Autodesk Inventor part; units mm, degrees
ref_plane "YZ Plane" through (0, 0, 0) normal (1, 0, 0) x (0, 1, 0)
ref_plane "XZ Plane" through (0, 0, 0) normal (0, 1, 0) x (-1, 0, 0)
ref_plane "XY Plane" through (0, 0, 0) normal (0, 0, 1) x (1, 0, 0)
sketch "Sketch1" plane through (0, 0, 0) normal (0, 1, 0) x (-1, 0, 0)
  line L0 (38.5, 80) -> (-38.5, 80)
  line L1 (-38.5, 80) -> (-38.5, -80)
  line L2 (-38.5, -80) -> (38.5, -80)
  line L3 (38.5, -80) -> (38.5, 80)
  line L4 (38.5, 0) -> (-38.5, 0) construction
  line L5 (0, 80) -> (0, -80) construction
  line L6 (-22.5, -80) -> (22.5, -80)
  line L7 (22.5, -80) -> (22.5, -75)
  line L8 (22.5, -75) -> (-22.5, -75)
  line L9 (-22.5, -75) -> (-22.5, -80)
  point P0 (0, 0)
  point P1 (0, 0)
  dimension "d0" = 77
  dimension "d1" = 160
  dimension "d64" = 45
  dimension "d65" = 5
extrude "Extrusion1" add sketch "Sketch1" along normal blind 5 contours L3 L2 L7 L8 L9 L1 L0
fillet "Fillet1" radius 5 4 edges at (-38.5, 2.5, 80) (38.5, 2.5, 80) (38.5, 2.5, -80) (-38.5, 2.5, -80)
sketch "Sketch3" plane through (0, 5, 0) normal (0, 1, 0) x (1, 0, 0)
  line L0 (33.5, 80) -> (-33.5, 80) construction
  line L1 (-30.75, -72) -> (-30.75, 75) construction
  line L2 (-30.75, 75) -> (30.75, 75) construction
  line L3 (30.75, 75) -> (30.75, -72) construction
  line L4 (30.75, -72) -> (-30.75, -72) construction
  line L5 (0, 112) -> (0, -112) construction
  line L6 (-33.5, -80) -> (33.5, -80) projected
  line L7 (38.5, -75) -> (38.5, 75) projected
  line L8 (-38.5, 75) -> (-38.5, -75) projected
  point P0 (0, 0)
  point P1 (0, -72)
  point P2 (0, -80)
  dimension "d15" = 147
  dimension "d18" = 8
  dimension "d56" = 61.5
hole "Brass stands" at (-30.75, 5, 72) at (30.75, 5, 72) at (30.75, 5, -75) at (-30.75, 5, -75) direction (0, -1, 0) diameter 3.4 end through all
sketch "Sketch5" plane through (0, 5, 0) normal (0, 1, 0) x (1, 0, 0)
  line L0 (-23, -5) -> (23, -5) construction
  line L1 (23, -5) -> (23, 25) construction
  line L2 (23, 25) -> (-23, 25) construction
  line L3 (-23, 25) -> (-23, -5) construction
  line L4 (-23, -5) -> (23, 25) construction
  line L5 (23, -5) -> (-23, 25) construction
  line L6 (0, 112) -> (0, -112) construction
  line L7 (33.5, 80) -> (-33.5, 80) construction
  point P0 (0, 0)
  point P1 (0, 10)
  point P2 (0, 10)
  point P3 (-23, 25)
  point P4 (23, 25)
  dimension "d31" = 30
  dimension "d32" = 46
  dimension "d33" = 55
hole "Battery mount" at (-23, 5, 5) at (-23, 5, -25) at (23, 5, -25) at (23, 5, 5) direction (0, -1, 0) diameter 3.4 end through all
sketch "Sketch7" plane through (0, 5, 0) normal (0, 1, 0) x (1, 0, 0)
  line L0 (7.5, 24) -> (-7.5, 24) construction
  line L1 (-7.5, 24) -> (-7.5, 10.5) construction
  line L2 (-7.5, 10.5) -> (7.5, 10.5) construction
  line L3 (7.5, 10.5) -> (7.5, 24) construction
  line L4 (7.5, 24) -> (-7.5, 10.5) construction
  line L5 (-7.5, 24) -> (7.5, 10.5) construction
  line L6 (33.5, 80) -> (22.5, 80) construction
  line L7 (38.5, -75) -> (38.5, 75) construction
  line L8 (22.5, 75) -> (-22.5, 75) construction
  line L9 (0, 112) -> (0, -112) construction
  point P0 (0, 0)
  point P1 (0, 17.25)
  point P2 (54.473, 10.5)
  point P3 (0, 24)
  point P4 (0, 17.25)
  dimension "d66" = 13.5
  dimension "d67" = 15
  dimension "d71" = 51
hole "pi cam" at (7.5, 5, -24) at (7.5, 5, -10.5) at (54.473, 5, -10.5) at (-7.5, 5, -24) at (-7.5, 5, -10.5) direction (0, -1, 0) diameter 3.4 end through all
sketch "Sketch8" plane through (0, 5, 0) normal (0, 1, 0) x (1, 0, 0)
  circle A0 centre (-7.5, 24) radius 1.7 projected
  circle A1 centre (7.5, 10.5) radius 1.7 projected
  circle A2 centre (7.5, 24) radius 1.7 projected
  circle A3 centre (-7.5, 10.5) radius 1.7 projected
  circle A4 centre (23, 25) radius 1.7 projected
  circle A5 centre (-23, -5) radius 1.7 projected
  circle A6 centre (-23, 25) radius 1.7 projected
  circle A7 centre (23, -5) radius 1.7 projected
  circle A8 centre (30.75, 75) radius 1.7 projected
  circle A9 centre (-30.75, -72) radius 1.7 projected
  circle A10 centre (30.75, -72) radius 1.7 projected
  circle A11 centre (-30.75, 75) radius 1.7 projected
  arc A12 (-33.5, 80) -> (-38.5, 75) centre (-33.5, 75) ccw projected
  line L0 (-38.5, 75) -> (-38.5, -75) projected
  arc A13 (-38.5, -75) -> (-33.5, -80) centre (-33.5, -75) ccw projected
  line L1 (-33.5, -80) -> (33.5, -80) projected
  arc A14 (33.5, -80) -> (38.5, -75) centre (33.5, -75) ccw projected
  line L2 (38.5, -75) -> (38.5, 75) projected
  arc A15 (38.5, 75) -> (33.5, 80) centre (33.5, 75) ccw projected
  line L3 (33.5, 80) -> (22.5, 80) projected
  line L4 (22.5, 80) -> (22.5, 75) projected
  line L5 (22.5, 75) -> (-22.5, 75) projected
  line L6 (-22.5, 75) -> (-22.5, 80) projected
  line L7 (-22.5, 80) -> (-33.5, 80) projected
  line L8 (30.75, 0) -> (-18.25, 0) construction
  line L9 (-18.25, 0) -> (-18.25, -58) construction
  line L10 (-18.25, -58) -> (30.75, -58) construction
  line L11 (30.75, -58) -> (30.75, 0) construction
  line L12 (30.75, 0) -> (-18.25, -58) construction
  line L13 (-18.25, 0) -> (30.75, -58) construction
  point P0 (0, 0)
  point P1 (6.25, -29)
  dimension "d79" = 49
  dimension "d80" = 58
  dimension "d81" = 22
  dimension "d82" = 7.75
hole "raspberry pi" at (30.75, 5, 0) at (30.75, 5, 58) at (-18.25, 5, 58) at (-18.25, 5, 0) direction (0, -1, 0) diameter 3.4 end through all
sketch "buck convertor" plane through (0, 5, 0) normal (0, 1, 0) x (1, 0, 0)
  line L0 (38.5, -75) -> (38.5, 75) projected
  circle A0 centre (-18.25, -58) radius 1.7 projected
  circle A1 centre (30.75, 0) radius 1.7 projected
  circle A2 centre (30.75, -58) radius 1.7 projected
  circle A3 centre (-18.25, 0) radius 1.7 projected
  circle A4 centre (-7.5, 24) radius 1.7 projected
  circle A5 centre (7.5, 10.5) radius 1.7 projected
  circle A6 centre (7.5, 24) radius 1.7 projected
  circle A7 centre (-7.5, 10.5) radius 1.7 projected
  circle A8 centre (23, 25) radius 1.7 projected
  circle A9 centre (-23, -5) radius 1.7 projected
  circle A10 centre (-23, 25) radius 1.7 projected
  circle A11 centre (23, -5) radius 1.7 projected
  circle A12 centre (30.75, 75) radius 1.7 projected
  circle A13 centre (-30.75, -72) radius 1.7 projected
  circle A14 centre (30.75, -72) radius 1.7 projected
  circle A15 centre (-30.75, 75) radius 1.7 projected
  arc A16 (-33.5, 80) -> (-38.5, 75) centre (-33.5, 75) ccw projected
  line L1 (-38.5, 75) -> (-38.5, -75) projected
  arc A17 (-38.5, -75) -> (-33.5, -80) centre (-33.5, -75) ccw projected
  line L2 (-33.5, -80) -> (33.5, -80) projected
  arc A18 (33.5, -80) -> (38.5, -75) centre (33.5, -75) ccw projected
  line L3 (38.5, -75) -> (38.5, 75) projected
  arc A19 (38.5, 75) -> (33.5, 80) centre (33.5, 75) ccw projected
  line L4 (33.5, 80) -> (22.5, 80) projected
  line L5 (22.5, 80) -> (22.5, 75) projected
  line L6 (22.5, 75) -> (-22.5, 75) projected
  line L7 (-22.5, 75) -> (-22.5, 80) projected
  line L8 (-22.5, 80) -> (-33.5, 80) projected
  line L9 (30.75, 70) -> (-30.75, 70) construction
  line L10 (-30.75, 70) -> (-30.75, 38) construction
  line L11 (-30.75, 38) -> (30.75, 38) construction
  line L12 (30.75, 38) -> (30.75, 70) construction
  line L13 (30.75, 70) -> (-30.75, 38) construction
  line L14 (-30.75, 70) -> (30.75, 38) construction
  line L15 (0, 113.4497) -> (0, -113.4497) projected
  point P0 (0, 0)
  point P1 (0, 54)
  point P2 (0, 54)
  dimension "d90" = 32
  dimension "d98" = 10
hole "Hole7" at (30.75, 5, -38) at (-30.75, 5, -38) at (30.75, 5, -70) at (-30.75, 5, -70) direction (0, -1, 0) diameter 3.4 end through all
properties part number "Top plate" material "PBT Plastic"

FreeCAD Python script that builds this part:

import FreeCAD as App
import Part
import Sketcher


def edges_at(feature, points):
    """Names of the edges that pass closest to the given points."""
    edges = feature.Shape.Edges
    near = lambda p: min(range(len(edges)), key=lambda i: edges[i].distToShape(Part.Vertex(*p))[0])
    return sorted({f"Edge{near(p) + 1}" for p in points})


def add_polygon(sketch, points):
    """Adds a closed chain of lines whose ends are joined by coincident constraints."""
    first, n = sketch.GeometryCount, len(points)
    for a, b in zip(points, points[1:] + points[:1]):
        sketch.addGeometry(Part.LineSegment(App.Vector(*a, 0), App.Vector(*b, 0)), False)
    for i in range(n):
        sketch.addConstraint(Sketcher.Constraint("Coincident", first + i, 2, first + (i + 1) % n, 1))

doc = App.newDocument("Part")
body = doc.addObject("PartDesign::Body", "Body")

# Sketch on XZ plane
sketch1 = body.newObject("Sketcher::SketchObject", "Sketch")
sketch1.AttachmentSupport = (doc.getObject("XZ_Plane"), [""])
sketch1.MapMode = "FlatFace"
add_polygon(sketch1, [(-38, -80), (-38, 80), (38, 80), (38, -80), (22, -80), (22, -75), (-22, -75), (-22, -80)])  # lines 0-7
sketch1.addConstraint(Sketcher.Constraint("Vertical", 0))
sketch1.addConstraint(Sketcher.Constraint("Horizontal", 1))
sketch1.addConstraint(Sketcher.Constraint("Vertical", 2))
sketch1.addConstraint(Sketcher.Constraint("Horizontal", 3))
sketch1.addConstraint(Sketcher.Constraint("Vertical", 4))
sketch1.addConstraint(Sketcher.Constraint("Horizontal", 5))
sketch1.addConstraint(Sketcher.Constraint("Vertical", 6))
sketch1.addConstraint(Sketcher.Constraint("Horizontal", 7))
sketch1.addConstraint(Sketcher.Constraint("Symmetric", 0, 2, 2, 2, -1, 1))
sketch1.addConstraint(Sketcher.Constraint("Symmetric", 3, 2, 6, 2, -2))
sketch1.addConstraint(Sketcher.Constraint("DistanceX", 1, 1, 1, 2, 77.0))
sketch1.addConstraint(Sketcher.Constraint("DistanceX", 5, 2, 5, 1, 45.0))
sketch1.addConstraint(Sketcher.Constraint("DistanceY", 0, 1, 0, 2, 160.0))
sketch1.addConstraint(Sketcher.Constraint("DistanceY", 4, 1, 4, 2, 5.0))
pad1 = body.newObject("PartDesign::Pad", "Pad")
pad1.Profile = sketch1
pad1.Length = 5
pad1.Reversed = True
doc.recompute()

fillet = body.newObject("PartDesign::Fillet", "Fillet")
fillet.Base = (pad1, edges_at(pad1, [
    (-38.5, 2.5, 80),
    (38.5, 2.5, 80),
    (38.5, 2.5, -80),
    (-38.5, 2.5, -80),
]))
fillet.Radius = 5

# Sketch on XZ plane
sketch2 = body.newObject("Sketcher::SketchObject", "Sketch001")
sketch2.AttachmentSupport = (doc.getObject("XZ_Plane"), [""])
sketch2.MapMode = "FlatFace"
sketch2.AttachmentOffset = App.Placement(App.Vector(0, 0, -5), App.Rotation())
sketch2.addGeometry(Part.Circle(App.Vector(-30.8, 72, 0), App.Vector(0, 0, 1), 1.7), False)
sketch2.addGeometry(Part.Circle(App.Vector(30.8, 72, 0), App.Vector(0, 0, 1), 1.7), False)
sketch2.addGeometry(Part.Circle(App.Vector(30.8, -75, 0), App.Vector(0, 0, 1), 1.7), False)
sketch2.addGeometry(Part.Circle(App.Vector(-30.8, -75, 0), App.Vector(0, 0, 1), 1.7), False)
sketch2.addConstraint(Sketcher.Constraint("Equal", 0, 1))
sketch2.addConstraint(Sketcher.Constraint("Equal", 1, 2))
sketch2.addConstraint(Sketcher.Constraint("Equal", 2, 3))
sketch2.addConstraint(Sketcher.Constraint("Symmetric", 0, 3, 1, 3, -2))
sketch2.addConstraint(Sketcher.Constraint("Symmetric", 2, 3, 3, 3, -2))
sketch2.addConstraint(Sketcher.Constraint("Vertical", 1, 3, 2, 3))
sketch2.addConstraint(Sketcher.Constraint("Diameter", 0, 3.4))
sketch2.addConstraint(Sketcher.Constraint("DistanceY", -1, 1, 0, 3, 72.0))
sketch2.addConstraint(Sketcher.Constraint("DistanceY", 2, 3, -1, 1, 75.0))
sketch2.addConstraint(Sketcher.Constraint("DistanceX", 0, 3, 1, 3, 61.5))
doc.recompute()
hole = body.newObject("PartDesign::Hole", "Hole")
hole.Profile = sketch2
hole.ThreadType = "None"
hole.Diameter = 3.4
hole.DepthType = "ThroughAll"
hole.Reversed = True

# Sketch on XZ plane
sketch3 = body.newObject("Sketcher::SketchObject", "Sketch002")
sketch3.AttachmentSupport = (doc.getObject("XZ_Plane"), [""])
sketch3.MapMode = "FlatFace"
sketch3.AttachmentOffset = App.Placement(App.Vector(0, 0, -5), App.Rotation())
sketch3.addGeometry(Part.Circle(App.Vector(-23, 5, 0), App.Vector(0, 0, 1), 1.7), False)
sketch3.addGeometry(Part.Circle(App.Vector(-23, -25, 0), App.Vector(0, 0, 1), 1.7), False)
sketch3.addGeometry(Part.Circle(App.Vector(23, -25, 0), App.Vector(0, 0, 1), 1.7), False)
sketch3.addGeometry(Part.Circle(App.Vector(23, 5, 0), App.Vector(0, 0, 1), 1.7), False)
sketch3.addConstraint(Sketcher.Constraint("Equal", 0, 1))
sketch3.addConstraint(Sketcher.Constraint("Equal", 1, 2))
sketch3.addConstraint(Sketcher.Constraint("Equal", 2, 3))
sketch3.addConstraint(Sketcher.Constraint("Symmetric", 1, 3, 2, 3, -2))
sketch3.addConstraint(Sketcher.Constraint("Symmetric", 0, 3, 3, 3, -2))
sketch3.addConstraint(Sketcher.Constraint("Vertical", 0, 3, 1, 3))
sketch3.addConstraint(Sketcher.Constraint("Diameter", 0, 3.4))
sketch3.addConstraint(Sketcher.Constraint("DistanceX", 0, 3, -1, 1, 23.0))
sketch3.addConstraint(Sketcher.Constraint("DistanceY", -1, 1, 0, 3, 5.0))
sketch3.addConstraint(Sketcher.Constraint("DistanceY", 1, 3, -1, 1, 25.0))
doc.recompute()
hole2 = body.newObject("PartDesign::Hole", "Hole001")
hole2.Profile = sketch3
hole2.ThreadType = "None"
hole2.Diameter = 3.4
hole2.DepthType = "ThroughAll"
hole2.Reversed = True

# Sketch on XZ plane
sketch4 = body.newObject("Sketcher::SketchObject", "Sketch003")
sketch4.AttachmentSupport = (doc.getObject("XZ_Plane"), [""])
sketch4.MapMode = "FlatFace"
sketch4.AttachmentOffset = App.Placement(App.Vector(0, 0, -5), App.Rotation())
sketch4.addGeometry(Part.Circle(App.Vector(7.5, -24, 0), App.Vector(0, 0, 1), 1.7), False)
sketch4.addGeometry(Part.Circle(App.Vector(7.5, -10.5, 0), App.Vector(0, 0, 1), 1.7), False)
sketch4.addGeometry(Part.Circle(App.Vector(54.5, -10.5, 0), App.Vector(0, 0, 1), 1.7), False)
sketch4.addGeometry(Part.Circle(App.Vector(-7.5, -24, 0), App.Vector(0, 0, 1), 1.7), False)
sketch4.addGeometry(Part.Circle(App.Vector(-7.5, -10.5, 0), App.Vector(0, 0, 1), 1.7), False)
sketch4.addConstraint(Sketcher.Constraint("Equal", 0, 1))
sketch4.addConstraint(Sketcher.Constraint("Equal", 1, 2))
sketch4.addConstraint(Sketcher.Constraint("Equal", 2, 3))
sketch4.addConstraint(Sketcher.Constraint("Equal", 3, 4))
sketch4.addConstraint(Sketcher.Constraint("Symmetric", 0, 3, 3, 3, -2))
sketch4.addConstraint(Sketcher.Constraint("Symmetric", 1, 3, 4, 3, -2))
sketch4.addConstraint(Sketcher.Constraint("Horizontal", 1, 3, 2, 3))
sketch4.addConstraint(Sketcher.Constraint("Vertical", 0, 3, 1, 3))
sketch4.addConstraint(Sketcher.Constraint("Diameter", 0, 3.4))
sketch4.addConstraint(Sketcher.Constraint("DistanceY", 0, 3, -1, 1, 24.0))
sketch4.addConstraint(Sketcher.Constraint("DistanceX", 3, 3, 0, 3, 15.0))
sketch4.addConstraint(Sketcher.Constraint("DistanceY", 1, 3, -1, 1, 10.5))
sketch4.addConstraint(Sketcher.Constraint("DistanceX", -1, 1, 2, 3, 54.473))
doc.recompute()
hole3 = body.newObject("PartDesign::Hole", "Hole002")
hole3.Profile = sketch4
hole3.ThreadType = "None"
hole3.Diameter = 3.4
hole3.DepthType = "ThroughAll"
hole3.Reversed = True

# Sketch on XZ plane
sketch5 = body.newObject("Sketcher::SketchObject", "Sketch004")
sketch5.AttachmentSupport = (doc.getObject("XZ_Plane"), [""])
sketch5.MapMode = "FlatFace"
sketch5.AttachmentOffset = App.Placement(App.Vector(0, 0, -5), App.Rotation())
sketch5.addGeometry(Part.Circle(App.Vector(30.8, 0, 0), App.Vector(0, 0, 1), 1.7), False)
sketch5.addGeometry(Part.Circle(App.Vector(30.8, 58, 0), App.Vector(0, 0, 1), 1.7), False)
sketch5.addGeometry(Part.Circle(App.Vector(-18.2, 58, 0), App.Vector(0, 0, 1), 1.7), False)
sketch5.addGeometry(Part.Circle(App.Vector(-18.2, 0, 0), App.Vector(0, 0, 1), 1.7), False)
sketch5.addConstraint(Sketcher.Constraint("Equal", 0, 1))
sketch5.addConstraint(Sketcher.Constraint("Equal", 1, 2))
sketch5.addConstraint(Sketcher.Constraint("Equal", 2, 3))
sketch5.addConstraint(Sketcher.Constraint("PointOnObject", 0, 3, -1))
sketch5.addConstraint(Sketcher.Constraint("PointOnObject", 3, 3, -1))
sketch5.addConstraint(Sketcher.Constraint("Horizontal", 1, 3, 2, 3))
sketch5.addConstraint(Sketcher.Constraint("Vertical", 0, 3, 1, 3))
sketch5.addConstraint(Sketcher.Constraint("Vertical", 2, 3, 3, 3))
sketch5.addConstraint(Sketcher.Constraint("Diameter", 0, 3.4))
sketch5.addConstraint(Sketcher.Constraint("DistanceY", -1, 1, 1, 3, 58.0))
sketch5.addConstraint(Sketcher.Constraint("DistanceX", 2, 3, 1, 3, 49.0))
sketch5.addConstraint(Sketcher.Constraint("DistanceX", -1, 1, 0, 3, 30.75))
doc.recompute()
hole4 = body.newObject("PartDesign::Hole", "Hole003")
hole4.Profile = sketch5
hole4.ThreadType = "None"
hole4.Diameter = 3.4
hole4.DepthType = "ThroughAll"
hole4.Reversed = True

# Sketch on XZ plane
sketch6 = body.newObject("Sketcher::SketchObject", "Sketch005")
sketch6.AttachmentSupport = (doc.getObject("XZ_Plane"), [""])
sketch6.MapMode = "FlatFace"
sketch6.AttachmentOffset = App.Placement(App.Vector(0, 0, -5), App.Rotation())
sketch6.addGeometry(Part.Circle(App.Vector(30.8, -38, 0), App.Vector(0, 0, 1), 1.7), False)
sketch6.addGeometry(Part.Circle(App.Vector(-30.8, -38, 0), App.Vector(0, 0, 1), 1.7), False)
sketch6.addGeometry(Part.Circle(App.Vector(30.8, -70, 0), App.Vector(0, 0, 1), 1.7), False)
sketch6.addGeometry(Part.Circle(App.Vector(-30.8, -70, 0), App.Vector(0, 0, 1), 1.7), False)
sketch6.addConstraint(Sketcher.Constraint("Equal", 0, 1))
sketch6.addConstraint(Sketcher.Constraint("Equal", 1, 2))
sketch6.addConstraint(Sketcher.Constraint("Equal", 2, 3))
sketch6.addConstraint(Sketcher.Constraint("Symmetric", 0, 3, 1, 3, -2))
sketch6.addConstraint(Sketcher.Constraint("Symmetric", 2, 3, 3, 3, -2))
sketch6.addConstraint(Sketcher.Constraint("Vertical", 0, 3, 2, 3))
sketch6.addConstraint(Sketcher.Constraint("Diameter", 0, 3.4))
sketch6.addConstraint(Sketcher.Constraint("DistanceY", 0, 3, -1, 1, 38.0))
sketch6.addConstraint(Sketcher.Constraint("DistanceY", 2, 3, -1, 1, 70.0))
sketch6.addConstraint(Sketcher.Constraint("DistanceX", 1, 3, 0, 3, 61.5))
doc.recompute()
hole5 = body.newObject("PartDesign::Hole", "Hole004")
hole5.Profile = sketch6
hole5.ThreadType = "None"
hole5.Diameter = 3.4
hole5.DepthType = "ThroughAll"
hole5.Reversed = True

doc.recompute()
